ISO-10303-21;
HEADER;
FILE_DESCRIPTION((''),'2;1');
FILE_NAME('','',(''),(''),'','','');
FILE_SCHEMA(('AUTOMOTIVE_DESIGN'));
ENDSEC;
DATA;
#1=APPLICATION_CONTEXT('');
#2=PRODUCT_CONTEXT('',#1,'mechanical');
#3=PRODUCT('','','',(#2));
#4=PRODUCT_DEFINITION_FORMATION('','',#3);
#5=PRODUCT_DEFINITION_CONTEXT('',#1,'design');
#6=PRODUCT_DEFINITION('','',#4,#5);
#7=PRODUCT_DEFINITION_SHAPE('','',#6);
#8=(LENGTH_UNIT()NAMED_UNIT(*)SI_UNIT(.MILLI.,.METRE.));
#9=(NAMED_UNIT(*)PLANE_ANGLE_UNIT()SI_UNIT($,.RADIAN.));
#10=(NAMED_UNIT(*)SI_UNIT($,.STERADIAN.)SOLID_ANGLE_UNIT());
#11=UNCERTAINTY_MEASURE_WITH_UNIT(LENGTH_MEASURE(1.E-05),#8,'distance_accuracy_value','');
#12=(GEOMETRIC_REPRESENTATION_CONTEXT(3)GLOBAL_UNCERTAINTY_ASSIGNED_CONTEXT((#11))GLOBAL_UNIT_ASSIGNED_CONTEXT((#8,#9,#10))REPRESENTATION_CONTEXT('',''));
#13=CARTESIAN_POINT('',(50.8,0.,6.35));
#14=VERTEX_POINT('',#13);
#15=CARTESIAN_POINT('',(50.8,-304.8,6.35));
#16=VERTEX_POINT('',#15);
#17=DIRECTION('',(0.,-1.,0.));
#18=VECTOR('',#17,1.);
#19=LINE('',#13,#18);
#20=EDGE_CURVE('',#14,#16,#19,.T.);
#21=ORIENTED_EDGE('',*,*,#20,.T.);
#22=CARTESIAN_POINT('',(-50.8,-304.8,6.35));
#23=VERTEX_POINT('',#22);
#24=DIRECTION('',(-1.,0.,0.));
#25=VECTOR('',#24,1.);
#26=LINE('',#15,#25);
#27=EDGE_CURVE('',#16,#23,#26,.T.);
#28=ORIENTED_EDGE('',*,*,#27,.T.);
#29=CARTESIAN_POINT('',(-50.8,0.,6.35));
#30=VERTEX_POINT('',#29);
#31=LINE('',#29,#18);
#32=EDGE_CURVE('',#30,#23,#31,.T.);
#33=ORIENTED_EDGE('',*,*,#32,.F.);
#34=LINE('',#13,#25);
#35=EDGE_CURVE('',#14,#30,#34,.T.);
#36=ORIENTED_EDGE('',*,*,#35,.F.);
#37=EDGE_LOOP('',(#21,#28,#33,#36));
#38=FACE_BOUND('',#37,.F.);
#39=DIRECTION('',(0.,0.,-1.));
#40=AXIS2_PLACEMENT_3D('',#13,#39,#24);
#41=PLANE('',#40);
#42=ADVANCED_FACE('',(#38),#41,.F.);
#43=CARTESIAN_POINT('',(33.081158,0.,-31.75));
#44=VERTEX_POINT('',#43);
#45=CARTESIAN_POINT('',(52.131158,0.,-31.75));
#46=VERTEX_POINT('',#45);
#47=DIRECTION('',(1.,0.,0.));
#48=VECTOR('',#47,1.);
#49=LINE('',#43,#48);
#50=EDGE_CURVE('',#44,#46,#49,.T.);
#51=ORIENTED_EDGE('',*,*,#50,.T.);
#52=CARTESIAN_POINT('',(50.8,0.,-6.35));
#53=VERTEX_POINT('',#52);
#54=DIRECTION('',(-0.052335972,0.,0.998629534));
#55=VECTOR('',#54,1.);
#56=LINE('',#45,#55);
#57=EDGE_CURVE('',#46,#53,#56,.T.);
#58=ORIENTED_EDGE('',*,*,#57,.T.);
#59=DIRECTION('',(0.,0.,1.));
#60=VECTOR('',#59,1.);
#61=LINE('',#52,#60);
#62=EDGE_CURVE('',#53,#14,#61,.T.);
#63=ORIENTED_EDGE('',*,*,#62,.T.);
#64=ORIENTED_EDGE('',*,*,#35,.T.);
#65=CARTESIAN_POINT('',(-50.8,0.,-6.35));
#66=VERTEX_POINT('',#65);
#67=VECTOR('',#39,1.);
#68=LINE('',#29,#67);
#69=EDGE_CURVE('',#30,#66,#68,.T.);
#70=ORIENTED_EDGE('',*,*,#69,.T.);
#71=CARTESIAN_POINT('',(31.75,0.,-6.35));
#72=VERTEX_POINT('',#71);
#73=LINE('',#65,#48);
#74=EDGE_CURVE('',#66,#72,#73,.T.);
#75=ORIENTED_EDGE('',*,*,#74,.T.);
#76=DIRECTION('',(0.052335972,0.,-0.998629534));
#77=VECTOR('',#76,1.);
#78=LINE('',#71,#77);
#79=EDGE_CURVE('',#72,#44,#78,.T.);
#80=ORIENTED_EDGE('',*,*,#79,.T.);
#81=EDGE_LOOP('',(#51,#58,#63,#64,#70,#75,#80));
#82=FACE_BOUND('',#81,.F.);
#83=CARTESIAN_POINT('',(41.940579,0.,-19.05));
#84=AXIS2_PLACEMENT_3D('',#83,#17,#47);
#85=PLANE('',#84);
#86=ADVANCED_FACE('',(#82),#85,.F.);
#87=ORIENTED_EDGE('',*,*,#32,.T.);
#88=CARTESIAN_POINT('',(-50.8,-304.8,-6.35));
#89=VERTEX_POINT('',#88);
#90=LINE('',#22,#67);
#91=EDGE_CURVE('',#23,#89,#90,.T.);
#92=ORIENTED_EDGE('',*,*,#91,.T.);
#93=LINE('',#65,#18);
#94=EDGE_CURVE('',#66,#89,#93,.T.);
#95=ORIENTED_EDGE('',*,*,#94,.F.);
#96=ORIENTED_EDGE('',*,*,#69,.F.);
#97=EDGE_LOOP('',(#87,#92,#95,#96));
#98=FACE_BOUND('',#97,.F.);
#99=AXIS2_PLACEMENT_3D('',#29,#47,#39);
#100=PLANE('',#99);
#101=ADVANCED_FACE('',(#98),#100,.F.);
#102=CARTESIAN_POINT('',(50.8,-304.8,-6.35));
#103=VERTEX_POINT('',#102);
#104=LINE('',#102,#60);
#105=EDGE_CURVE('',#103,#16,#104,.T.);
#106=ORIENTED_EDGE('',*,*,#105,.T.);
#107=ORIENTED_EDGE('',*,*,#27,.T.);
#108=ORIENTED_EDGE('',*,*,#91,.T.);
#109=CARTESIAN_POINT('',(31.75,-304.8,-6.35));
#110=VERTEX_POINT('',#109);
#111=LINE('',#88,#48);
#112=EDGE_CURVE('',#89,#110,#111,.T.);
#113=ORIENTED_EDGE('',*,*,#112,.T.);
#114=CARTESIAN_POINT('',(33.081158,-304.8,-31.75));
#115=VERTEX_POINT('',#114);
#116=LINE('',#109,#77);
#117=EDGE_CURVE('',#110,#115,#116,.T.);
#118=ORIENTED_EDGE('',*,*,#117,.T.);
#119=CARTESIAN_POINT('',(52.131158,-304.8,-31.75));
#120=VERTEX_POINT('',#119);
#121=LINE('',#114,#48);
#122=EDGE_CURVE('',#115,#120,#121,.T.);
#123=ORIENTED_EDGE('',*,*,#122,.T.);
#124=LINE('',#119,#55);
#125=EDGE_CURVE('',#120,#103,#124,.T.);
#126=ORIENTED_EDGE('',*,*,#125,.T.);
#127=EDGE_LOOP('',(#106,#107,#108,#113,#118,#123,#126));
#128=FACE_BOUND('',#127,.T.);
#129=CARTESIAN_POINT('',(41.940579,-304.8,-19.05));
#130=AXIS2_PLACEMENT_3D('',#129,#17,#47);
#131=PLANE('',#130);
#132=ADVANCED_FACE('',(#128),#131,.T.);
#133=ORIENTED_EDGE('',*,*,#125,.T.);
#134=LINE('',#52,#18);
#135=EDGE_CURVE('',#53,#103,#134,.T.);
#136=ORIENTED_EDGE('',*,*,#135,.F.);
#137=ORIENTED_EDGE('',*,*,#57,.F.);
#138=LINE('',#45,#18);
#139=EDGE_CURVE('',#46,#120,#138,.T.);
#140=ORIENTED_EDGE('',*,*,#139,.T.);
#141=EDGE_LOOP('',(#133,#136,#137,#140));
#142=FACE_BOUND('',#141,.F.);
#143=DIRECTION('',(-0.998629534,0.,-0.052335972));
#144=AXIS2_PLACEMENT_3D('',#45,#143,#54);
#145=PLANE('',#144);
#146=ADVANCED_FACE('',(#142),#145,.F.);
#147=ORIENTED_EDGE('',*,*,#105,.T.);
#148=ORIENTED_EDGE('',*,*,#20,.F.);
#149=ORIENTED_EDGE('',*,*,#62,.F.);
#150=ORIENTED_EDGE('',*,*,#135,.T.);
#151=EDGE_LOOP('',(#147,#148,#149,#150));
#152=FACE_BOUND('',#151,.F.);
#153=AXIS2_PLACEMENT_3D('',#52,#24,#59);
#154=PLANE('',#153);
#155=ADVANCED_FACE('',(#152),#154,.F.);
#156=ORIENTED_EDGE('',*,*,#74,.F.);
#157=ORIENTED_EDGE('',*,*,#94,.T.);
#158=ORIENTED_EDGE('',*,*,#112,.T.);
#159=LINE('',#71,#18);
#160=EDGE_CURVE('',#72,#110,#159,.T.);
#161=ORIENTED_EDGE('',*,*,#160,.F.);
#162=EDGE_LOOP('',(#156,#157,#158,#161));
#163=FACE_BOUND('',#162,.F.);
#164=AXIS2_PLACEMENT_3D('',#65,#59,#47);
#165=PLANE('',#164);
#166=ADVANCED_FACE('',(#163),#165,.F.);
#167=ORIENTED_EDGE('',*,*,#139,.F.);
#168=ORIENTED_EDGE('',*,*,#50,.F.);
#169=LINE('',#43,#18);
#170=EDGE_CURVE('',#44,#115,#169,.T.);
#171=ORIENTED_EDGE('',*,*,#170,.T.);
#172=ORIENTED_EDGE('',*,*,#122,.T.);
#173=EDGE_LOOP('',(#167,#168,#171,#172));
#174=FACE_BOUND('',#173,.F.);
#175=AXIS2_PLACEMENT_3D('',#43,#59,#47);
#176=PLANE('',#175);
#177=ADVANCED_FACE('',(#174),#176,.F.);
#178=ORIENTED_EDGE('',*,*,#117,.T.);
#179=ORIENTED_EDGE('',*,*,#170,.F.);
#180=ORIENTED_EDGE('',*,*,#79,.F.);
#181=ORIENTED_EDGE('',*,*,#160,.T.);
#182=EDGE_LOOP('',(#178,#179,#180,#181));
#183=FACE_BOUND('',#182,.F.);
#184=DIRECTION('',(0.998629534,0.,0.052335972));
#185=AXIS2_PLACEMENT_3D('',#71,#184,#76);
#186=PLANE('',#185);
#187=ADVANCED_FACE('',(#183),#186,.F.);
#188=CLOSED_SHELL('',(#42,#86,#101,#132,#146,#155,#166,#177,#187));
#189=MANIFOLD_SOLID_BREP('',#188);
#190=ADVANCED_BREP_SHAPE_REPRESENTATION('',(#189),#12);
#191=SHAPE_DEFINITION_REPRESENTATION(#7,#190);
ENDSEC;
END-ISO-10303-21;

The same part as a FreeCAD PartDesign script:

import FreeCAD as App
import Part
import Sketcher
from FreeCAD import Vector
Q = App.Units.Quantity


def add_polygon(sketch, points):
    """Adds a closed chain of lines whose ends are joined by coincident constraints."""
    first, n = sketch.GeometryCount, len(points)
    for a, b in zip(points, points[1:] + points[:1]):
        sketch.addGeometry(Part.LineSegment(App.Vector(*a, 0), App.Vector(*b, 0)), False)
    for i in range(n):
        sketch.addConstraint(Sketcher.Constraint("Coincident", first + i, 2, first + (i + 1) % n, 1))

doc = App.newDocument("Part")
params = doc.addObject("Spreadsheet::Sheet", "Params")
for row, (alias, value) in enumerate([
    ("sketch1_width", "4 in"),
    ("sketch1_height", "0.5 in"),
    ("pad1_length", "12 in"),
    ("sketch2_width", "0.75 in"),
    ("pad2_length", "12 in"),
], start=1):
    params.set(f"A{row}", alias)
    params.set(f"B{row}", "=" + value)
    params.setAlias(f"B{row}", alias)

body = doc.addObject("PartDesign::Body", "Body")

sketch1 = body.newObject("Sketcher::SketchObject", "Sketch")
sketch1.AttachmentSupport = (doc.getObject("XZ_Plane"), [""])
sketch1.MapMode = "FlatFace"
add_polygon(sketch1, [(51, -6), (51, 6), (-51, 6), (-51, -6)])
sketch1.addConstraint([
    Sketcher.Constraint("Vertical", 0),
    Sketcher.Constraint("Horizontal", 1),
    Sketcher.Constraint("Vertical", 2),
    Sketcher.Constraint("Horizontal", 3),
    Sketcher.Constraint("Symmetric", 0, 2, 2, 2, -1, 1),
    Sketcher.Constraint("DistanceX", 1, 2, 1, 1, Q("4 in")),
    Sketcher.Constraint("DistanceY", 0, 1, 0, 2, Q("0.5 in")),
])
sketch1.setExpression("Constraints[9]", "Params.sketch1_width")
sketch1.setExpression("Constraints[10]", "Params.sketch1_height")
pad1 = body.newObject("PartDesign::Pad", "Pad")
pad1.Profile = sketch1
pad1.setExpression("Length", "Params.pad1_length")

sketch2 = body.newObject("Sketcher::SketchObject", "Sketch001")
sketch2.AttachmentSupport = (doc.getObject("XZ_Plane"), [""])
sketch2.MapMode = "FlatFace"
add_polygon(sketch2, [(52, -32), (51, -6), (32, -6), (33, -32)])
sketch2.addConstraint([
    Sketcher.Constraint("Horizontal", 1),
    Sketcher.Constraint("Horizontal", 3),
    Sketcher.Constraint("Parallel", 0, 2),
    Sketcher.Constraint("DistanceX", -1, 1, 0, 2, Q("2 in")),
    Sketcher.Constraint("Angle", 0, Q("93.000001 deg")),
    Sketcher.Constraint("DistanceY", 2, 2, 1, 2, Q("1 in")),
    Sketcher.Constraint("DistanceX", 1, 2, 1, 1, Q("0.75 in")),
    Sketcher.Constraint("DistanceY", 0, 2, -1, 1, Q("0.25 in")),
])
sketch2.setExpression("Constraints[10]", "Params.sketch2_width")
pad2 = body.newObject("PartDesign::Pad", "Pad001")
pad2.Profile = sketch2
pad2.setExpression("Length", "Params.pad2_length")

doc.recompute()
